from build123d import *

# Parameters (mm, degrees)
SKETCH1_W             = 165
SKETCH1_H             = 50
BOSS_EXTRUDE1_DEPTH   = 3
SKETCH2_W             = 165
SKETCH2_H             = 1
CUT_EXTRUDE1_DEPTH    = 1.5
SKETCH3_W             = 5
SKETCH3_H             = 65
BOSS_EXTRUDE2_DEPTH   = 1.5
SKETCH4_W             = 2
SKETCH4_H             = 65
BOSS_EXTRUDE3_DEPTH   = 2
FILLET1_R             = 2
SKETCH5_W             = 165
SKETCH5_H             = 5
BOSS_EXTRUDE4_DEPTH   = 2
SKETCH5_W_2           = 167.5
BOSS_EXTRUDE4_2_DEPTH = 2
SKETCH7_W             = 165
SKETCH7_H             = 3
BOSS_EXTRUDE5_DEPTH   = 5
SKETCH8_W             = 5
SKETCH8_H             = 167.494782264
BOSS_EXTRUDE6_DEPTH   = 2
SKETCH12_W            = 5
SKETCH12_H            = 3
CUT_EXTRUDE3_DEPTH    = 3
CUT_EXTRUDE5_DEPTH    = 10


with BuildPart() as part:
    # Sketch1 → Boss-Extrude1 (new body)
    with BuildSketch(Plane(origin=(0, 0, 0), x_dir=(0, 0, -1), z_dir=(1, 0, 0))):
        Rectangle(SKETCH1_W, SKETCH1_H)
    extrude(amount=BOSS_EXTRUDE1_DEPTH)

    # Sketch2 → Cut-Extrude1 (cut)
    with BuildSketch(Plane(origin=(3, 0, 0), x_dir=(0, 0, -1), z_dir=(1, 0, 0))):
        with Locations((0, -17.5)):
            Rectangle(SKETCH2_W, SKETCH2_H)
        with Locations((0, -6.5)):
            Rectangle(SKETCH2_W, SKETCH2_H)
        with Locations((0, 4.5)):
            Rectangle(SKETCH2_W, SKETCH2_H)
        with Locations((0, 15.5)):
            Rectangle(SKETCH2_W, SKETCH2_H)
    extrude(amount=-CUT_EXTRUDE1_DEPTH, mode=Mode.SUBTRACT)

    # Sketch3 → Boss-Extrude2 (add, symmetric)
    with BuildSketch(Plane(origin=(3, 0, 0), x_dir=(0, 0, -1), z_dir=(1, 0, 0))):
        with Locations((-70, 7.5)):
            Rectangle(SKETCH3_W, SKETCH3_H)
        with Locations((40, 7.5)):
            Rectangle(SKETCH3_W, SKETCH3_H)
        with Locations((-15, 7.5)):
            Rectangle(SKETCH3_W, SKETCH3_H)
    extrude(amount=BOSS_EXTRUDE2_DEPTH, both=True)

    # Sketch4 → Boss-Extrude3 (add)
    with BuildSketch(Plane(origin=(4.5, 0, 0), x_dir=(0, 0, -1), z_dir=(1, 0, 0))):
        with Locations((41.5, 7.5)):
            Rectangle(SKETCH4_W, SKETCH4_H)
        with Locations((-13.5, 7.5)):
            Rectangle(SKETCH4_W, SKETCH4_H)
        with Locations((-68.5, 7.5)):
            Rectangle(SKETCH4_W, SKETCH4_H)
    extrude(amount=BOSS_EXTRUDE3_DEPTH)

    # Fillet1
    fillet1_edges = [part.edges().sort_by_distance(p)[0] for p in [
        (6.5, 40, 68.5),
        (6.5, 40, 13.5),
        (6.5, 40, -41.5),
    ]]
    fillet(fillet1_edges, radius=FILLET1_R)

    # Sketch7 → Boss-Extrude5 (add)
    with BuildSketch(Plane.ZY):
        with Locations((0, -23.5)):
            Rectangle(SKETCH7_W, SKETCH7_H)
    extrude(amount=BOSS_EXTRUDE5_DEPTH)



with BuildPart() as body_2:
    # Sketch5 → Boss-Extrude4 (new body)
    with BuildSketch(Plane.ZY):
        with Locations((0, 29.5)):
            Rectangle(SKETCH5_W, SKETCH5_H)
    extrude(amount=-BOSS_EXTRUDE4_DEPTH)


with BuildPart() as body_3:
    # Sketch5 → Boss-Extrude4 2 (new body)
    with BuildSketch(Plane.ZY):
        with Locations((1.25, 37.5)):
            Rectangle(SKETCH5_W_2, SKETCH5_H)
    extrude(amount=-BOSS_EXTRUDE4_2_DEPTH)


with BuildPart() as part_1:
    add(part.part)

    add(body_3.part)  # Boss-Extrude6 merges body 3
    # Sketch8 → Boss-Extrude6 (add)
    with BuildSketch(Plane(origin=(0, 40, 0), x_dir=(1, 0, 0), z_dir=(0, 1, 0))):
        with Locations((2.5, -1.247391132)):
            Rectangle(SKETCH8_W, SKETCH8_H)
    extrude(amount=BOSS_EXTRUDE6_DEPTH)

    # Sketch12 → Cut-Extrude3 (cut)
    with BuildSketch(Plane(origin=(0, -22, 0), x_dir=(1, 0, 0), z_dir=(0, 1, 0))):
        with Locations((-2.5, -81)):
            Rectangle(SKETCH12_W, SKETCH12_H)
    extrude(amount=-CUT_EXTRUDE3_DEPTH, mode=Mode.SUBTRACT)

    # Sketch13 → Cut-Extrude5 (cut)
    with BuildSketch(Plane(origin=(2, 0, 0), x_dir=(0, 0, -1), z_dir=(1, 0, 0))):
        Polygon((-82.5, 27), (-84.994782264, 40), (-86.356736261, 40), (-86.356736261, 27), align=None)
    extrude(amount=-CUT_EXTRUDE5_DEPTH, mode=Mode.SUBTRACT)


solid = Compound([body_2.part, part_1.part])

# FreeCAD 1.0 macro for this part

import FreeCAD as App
import Part
import Sketcher
from FreeCAD import Vector


def edges_at(feature, points):
    """Names of the edges that pass closest to the given points."""
    edges = feature.Shape.Edges
    near = lambda p: min(range(len(edges)), key=lambda i: edges[i].distToShape(Part.Vertex(*p))[0])
    return sorted({f"Edge{near(p) + 1}" for p in points})


def add_polygon(sketch, points):
    """Adds a closed chain of lines whose ends are joined by coincident constraints."""
    first, n = sketch.GeometryCount, len(points)
    for a, b in zip(points, points[1:] + points[:1]):
        sketch.addGeometry(Part.LineSegment(App.Vector(*a, 0), App.Vector(*b, 0)), False)
    for i in range(n):
        sketch.addConstraint(Sketcher.Constraint("Coincident", first + i, 2, first + (i + 1) % n, 1))

doc = App.newDocument("Part")
body = doc.addObject("PartDesign::Body", "Body")

sketch1 = body.newObject("Sketcher::SketchObject", "Sketch")
sketch1.AttachmentSupport = (doc.getObject("YZ_Plane"), [""])
sketch1.MapMode = "FlatFace"
add_polygon(sketch1, [(25, 82), (-25, 82), (-25, -82), (25, -82)])
sketch1.addConstraint([
    Sketcher.Constraint("Horizontal", 0),
    Sketcher.Constraint("Vertical", 1),
    Sketcher.Constraint("Horizontal", 2),
    Sketcher.Constraint("Vertical", 3),
    Sketcher.Constraint("Symmetric", 0, 2, 2, 2, -1, 1),
    Sketcher.Constraint("DistanceX", 0, 2, 0, 1, 50.0),
    Sketcher.Constraint("DistanceY", 1, 2, 1, 1, 165.0),
])
pad1 = body.newObject("PartDesign::Pad", "Pad")
pad1.Profile = sketch1
pad1.Length = 3

sketch2 = body.newObject("Sketcher::SketchObject", "Sketch001")
sketch2.AttachmentSupport = (doc.getObject("YZ_Plane"), [""])
sketch2.MapMode = "FlatFace"
sketch2.AttachmentOffset = App.Placement(Vector(0, 0, 3), App.Rotation())
add_polygon(sketch2, [(-17, 82.5), (-18, 82.5), (-18, -82.5), (-17, -82.5)])
add_polygon(sketch2, [(-6, 82.5), (-7, 82.5), (-7, -82.5), (-6, -82.5)])
add_polygon(sketch2, [(5, 82.5), (4, 82.5), (4, -82.5), (5, -82.5)])
add_polygon(sketch2, [(16, 82.5), (15, 82.5), (15, -82.5), (16, -82.5)])
sketch2.addConstraint([
    Sketcher.Constraint("Horizontal", 0),
    Sketcher.Constraint("Vertical", 1),
    Sketcher.Constraint("Horizontal", 2),
    Sketcher.Constraint("Vertical", 3),
    Sketcher.Constraint("Horizontal", 4),
    Sketcher.Constraint("Vertical", 5),
    Sketcher.Constraint("Horizontal", 6),
    Sketcher.Constraint("Vertical", 7),
    Sketcher.Constraint("Horizontal", 8),
    Sketcher.Constraint("Vertical", 9),
    Sketcher.Constraint("Horizontal", 10),
    Sketcher.Constraint("Vertical", 11),
    Sketcher.Constraint("Horizontal", 12),
    Sketcher.Constraint("Vertical", 13),
    Sketcher.Constraint("Horizontal", 14),
    Sketcher.Constraint("Vertical", 15),
    Sketcher.Constraint("Horizontal", 3, 2, 4, 2),
    Sketcher.Constraint("Horizontal", 2, 2, 5, 2),
    Sketcher.Constraint("Horizontal", 7, 2, 8, 2),
    Sketcher.Constraint("Horizontal", 6, 2, 9, 2),
    Sketcher.Constraint("Horizontal", 11, 2, 12, 2),
    Sketcher.Constraint("Horizontal", 10, 2, 13, 2),
    Sketcher.Constraint("Equal", 2, 4),
    Sketcher.Constraint("Equal", 6, 8),
    Sketcher.Constraint("Equal", 10, 12),
    Sketcher.Constraint("DistanceX", 0, 2, 0, 1, 1.0),
    Sketcher.Constraint("DistanceY", 1, 2, 1, 1, 165.0),
    Sketcher.Constraint("DistanceX", 0, 2, -1, 1, 18.0),
    Sketcher.Constraint("DistanceX", 4, 2, -1, 1, 7.0),
    Sketcher.Constraint("DistanceX", -1, 1, 8, 2, 4.0),
    Sketcher.Constraint("DistanceX", -1, 1, 12, 2, 15.0),
    Sketcher.Constraint("DistanceY", -1, 1, 0, 2, 82.5),
])
pocket1 = body.newObject("PartDesign::Pocket", "Pocket")
pocket1.Profile = sketch2
pocket1.Length = 1.5

sketch3 = body.newObject("Sketcher::SketchObject", "Sketch002")
sketch3.AttachmentSupport = (doc.getObject("YZ_Plane"), [""])
sketch3.MapMode = "FlatFace"
sketch3.AttachmentOffset = App.Placement(Vector(0, 0, 3), App.Rotation())
add_polygon(sketch3, [(40, 72), (-25, 72), (-25, 68), (40, 68)])
add_polygon(sketch3, [(40, -38), (-25, -38), (-25, -42), (40, -42)])
add_polygon(sketch3, [(40, 18), (-25, 18), (-25, 12), (40, 12)])
sketch3.addConstraint([
    Sketcher.Constraint("Horizontal", 0),
    Sketcher.Constraint("Vertical", 1),
    Sketcher.Constraint("Horizontal", 2),
    Sketcher.Constraint("Vertical", 3),
    Sketcher.Constraint("Horizontal", 4),
    Sketcher.Constraint("Vertical", 5),
    Sketcher.Constraint("Horizontal", 6),
    Sketcher.Constraint("Vertical", 7),
    Sketcher.Constraint("Horizontal", 8),
    Sketcher.Constraint("Vertical", 9),
    Sketcher.Constraint("Horizontal", 10),
    Sketcher.Constraint("Vertical", 11),
    Sketcher.Constraint("Vertical", 1, 2, 4, 2),
    Sketcher.Constraint("Vertical", 3, 2, 6, 2),
    Sketcher.Constraint("Vertical", 5, 2, 8, 2),
    Sketcher.Constraint("Vertical", 7, 2, 10, 2),
    Sketcher.Constraint("Equal", 3, 5),
    Sketcher.Constraint("Equal", 7, 9),
    Sketcher.Constraint("DistanceX", 0, 2, 0, 1, 65.0),
    Sketcher.Constraint("DistanceY", 1, 2, 1, 1, 5.0),
    Sketcher.Constraint("DistanceX", 0, 2, -1, 1, 25.0),
    Sketcher.Constraint("DistanceY", 4, 2, 1, 2, 105.0),
    Sketcher.Constraint("DistanceY", 8, 2, 1, 2, 50.0),
    Sketcher.Constraint("DistanceY", -1, 1, 0, 2, 72.5),
])
pad2 = body.newObject("PartDesign::Pad", "Pad001")
pad2.Profile = sketch3
pad2.Length = 3
pad2.Midplane = True

sketch4 = body.newObject("Sketcher::SketchObject", "Sketch003")
sketch4.AttachmentSupport = (doc.getObject("YZ_Plane"), [""])
sketch4.MapMode = "FlatFace"
sketch4.AttachmentOffset = App.Placement(Vector(0, 0, 4.5), App.Rotation())
add_polygon(sketch4, [(40, -40.5), (-25, -40.5), (-25, -42.5), (40, -42.5)])
add_polygon(sketch4, [(40, 14.5), (-25, 14.5), (-25, 12.5), (40, 12.5)])
add_polygon(sketch4, [(40, 69.5), (-25, 69.5), (-25, 67.5), (40, 67.5)])
sketch4.addConstraint([
    Sketcher.Constraint("Horizontal", 0),
    Sketcher.Constraint("Vertical", 1),
    Sketcher.Constraint("Horizontal", 2),
    Sketcher.Constraint("Vertical", 3),
    Sketcher.Constraint("Horizontal", 4),
    Sketcher.Constraint("Vertical", 5),
    Sketcher.Constraint("Horizontal", 6),
    Sketcher.Constraint("Vertical", 7),
    Sketcher.Constraint("Horizontal", 8),
    Sketcher.Constraint("Vertical", 9),
    Sketcher.Constraint("Horizontal", 10),
    Sketcher.Constraint("Vertical", 11),
    Sketcher.Constraint("Vertical", 1, 2, 4, 2),
    Sketcher.Constraint("Vertical", 3, 2, 6, 2),
    Sketcher.Constraint("Vertical", 5, 2, 8, 2),
    Sketcher.Constraint("Vertical", 7, 2, 10, 2),
    Sketcher.Constraint("Equal", 3, 5),
    Sketcher.Constraint("Equal", 7, 9),
    Sketcher.Constraint("DistanceX", 0, 2, 0, 1, 65.0),
    Sketcher.Constraint("DistanceY", 1, 2, 1, 1, 2.0),
    Sketcher.Constraint("DistanceX", 0, 2, -1, 1, 25.0),
    Sketcher.Constraint("DistanceY", 0, 2, 4, 2, 55.0),
    Sketcher.Constraint("DistanceY", 4, 2, 8, 2, 55.0),
    Sketcher.Constraint("DistanceY", 0, 2, -1, 1, 40.5),
])
pad3 = body.newObject("PartDesign::Pad", "Pad002")
pad3.Profile = sketch4
pad3.Length = 2
doc.recompute()

fillet = body.newObject("PartDesign::Fillet", "Fillet")
fillet.Base = (pad3, edges_at(pad3, [(6.5, 40, 68.5), (6.5, 40, 13.5), (6.5, 40, -41.5)]))
fillet.Radius = 2

sketch5 = body.newObject("Sketcher::SketchObject", "Sketch004")
sketch5.AttachmentSupport = (doc.getObject("YZ_Plane"), [""])
sketch5.MapMode = "FlatFace"
add_polygon(sketch5, [(-22, -82.5), (-25, -82.5), (-25, 82.5), (-22, 82.5)])
sketch5.addConstraint([
    Sketcher.Constraint("Horizontal", 0),
    Sketcher.Constraint("Vertical", 1),
    Sketcher.Constraint("Horizontal", 2),
    Sketcher.Constraint("Vertical", 3),
    Sketcher.Constraint("DistanceX", 0, 2, 0, 1, 3.0),
    Sketcher.Constraint("DistanceY", 1, 1, 1, 2, 165.0),
    Sketcher.Constraint("DistanceX", 0, 2, -1, 1, 25.0),
    Sketcher.Constraint("DistanceY", 0, 2, -1, 1, 82.5),
])
pad4 = body.newObject("PartDesign::Pad", "Pad003")
pad4.Profile = sketch5
pad4.Length = 5
pad4.Reversed = True
body2 = doc.addObject("PartDesign::Body", "Body001")

sketch6 = body2.newObject("Sketcher::SketchObject", "Sketch005")
sketch6.AttachmentSupport = (doc.getObject("YZ_Plane001"), [""])
sketch6.MapMode = "FlatFace"
add_polygon(sketch6, [(32, -82), (27, -82), (27, 82), (32, 82)])
sketch6.addConstraint([
    Sketcher.Constraint("Horizontal", 0),
    Sketcher.Constraint("Vertical", 1),
    Sketcher.Constraint("Horizontal", 2),
    Sketcher.Constraint("Vertical", 3),
    Sketcher.Constraint("DistanceX", 0, 2, 0, 1, 5.0),
    Sketcher.Constraint("DistanceY", 1, 1, 1, 2, 165.0),
    Sketcher.Constraint("DistanceX", -1, 1, 0, 2, 27.0),
    Sketcher.Constraint("DistanceY", 0, 2, -1, 1, 82.5),
])
pad5 = body2.newObject("PartDesign::Pad", "Pad004")
pad5.Profile = sketch6
pad5.Length = 2
body3 = doc.addObject("PartDesign::Body", "Body002")

sketch7 = body3.newObject("Sketcher::SketchObject", "Sketch006")
sketch7.AttachmentSupport = (doc.getObject("YZ_Plane002"), [""])
sketch7.MapMode = "FlatFace"
add_polygon(sketch7, [(40, -82), (35, -82), (35, 85), (40, 85)])
sketch7.addConstraint([
    Sketcher.Constraint("Horizontal", 0),
    Sketcher.Constraint("Vertical", 1),
    Sketcher.Constraint("Horizontal", 2),
    Sketcher.Constraint("Vertical", 3),
    Sketcher.Constraint("DistanceX", 0, 2, 0, 1, 5.0),
    Sketcher.Constraint("DistanceY", 1, 1, 1, 2, 167.5),
    Sketcher.Constraint("DistanceX", -1, 1, 0, 2, 35.0),
    Sketcher.Constraint("DistanceY", -1, 1, 1, 2, 85.0),
])
pad6 = body3.newObject("PartDesign::Pad", "Pad005")
pad6.Profile = sketch7
pad6.Length = 2
doc.recompute()

boolean = body.newObject("PartDesign::Boolean", "Boolean")
boolean.Type = "Fuse"
boolean.addObjects([body3])

sketch8 = body.newObject("Sketcher::SketchObject", "Sketch007")
sketch8.AttachmentSupport = (doc.getObject("XZ_Plane"), [""])
sketch8.MapMode = "FlatFace"
sketch8.AttachmentOffset = App.Placement(Vector(0, 0, -40), App.Rotation())
add_polygon(sketch8, [(0, -82), (0, 85), (5, 85), (5, -82)])
sketch8.addConstraint([
    Sketcher.Constraint("Vertical", 0),
    Sketcher.Constraint("Horizontal", 1),
    Sketcher.Constraint("Vertical", 2),
    Sketcher.Constraint("Horizontal", 3),
    Sketcher.Constraint("PointOnObject", 0, 2, -2),
    Sketcher.Constraint("DistanceX", 1, 1, 1, 2, 5.0),
    Sketcher.Constraint("DistanceY", 2, 2, -1, 1, 82.5),
    Sketcher.Constraint("DistanceY", 0, 1, 0, 2, 167.494782),
])
pad7 = body.newObject("PartDesign::Pad", "Pad006")
pad7.Profile = sketch8
pad7.Length = 2
pad7.Reversed = True

sketch9 = body.newObject("Sketcher::SketchObject", "Sketch008")
sketch9.AttachmentSupport = (doc.getObject("XZ_Plane"), [""])
sketch9.MapMode = "FlatFace"
sketch9.AttachmentOffset = App.Placement(Vector(0, 0, 22), App.Rotation())
add_polygon(sketch9, [(-5, 79.5), (-5, 82.5), (0, 82.5), (0, 79.5)])
sketch9.addConstraint([
    Sketcher.Constraint("Vertical", 0),
    Sketcher.Constraint("Horizontal", 1),
    Sketcher.Constraint("Vertical", 2),
    Sketcher.Constraint("Horizontal", 3),
    Sketcher.Constraint("PointOnObject", 1, 2, -2),
    Sketcher.Constraint("DistanceX", 1, 1, 1, 2, 5.0),
    Sketcher.Constraint("DistanceY", 0, 1, 0, 2, 3.0),
    Sketcher.Constraint("DistanceY", -1, 1, 0, 2, 82.5),
])
pocket2 = body.newObject("PartDesign::Pocket", "Pocket001")
pocket2.Profile = sketch9
pocket2.Length = 3
pocket2.Reversed = True

sketch10 = body.newObject("Sketcher::SketchObject", "Sketch009")
sketch10.AttachmentSupport = (doc.getObject("YZ_Plane"), [""])
sketch10.MapMode = "FlatFace"
sketch10.AttachmentOffset = App.Placement(Vector(0, 0, 2), App.Rotation())
add_polygon(sketch10, [(27, 82.5), (40, 85), (40, 86.4), (27, 86.4)])
sketch10.addConstraint([
    Sketcher.Constraint("Vertical", 1),
    Sketcher.Constraint("Horizontal", 2),
    Sketcher.Constraint("Vertical", 3),
    Sketcher.Constraint("DistanceX", 2, 2, 2, 1, 13.0),
    Sketcher.Constraint("DistanceX", -1, 1, 0, 2, 40.0),
    Sketcher.Constraint("DistanceY", -1, 1, 3, 2, 82.5),
    Sketcher.Constraint("DistanceY", 1, 1, 1, 2, 1.361954),
    Sketcher.Constraint("DistanceY", 3, 2, 3, 1, 3.856736),
])
pocket3 = body.newObject("PartDesign::Pocket", "Pocket002")
pocket3.Profile = sketch10
pocket3.Length = 10

doc.recompute()
